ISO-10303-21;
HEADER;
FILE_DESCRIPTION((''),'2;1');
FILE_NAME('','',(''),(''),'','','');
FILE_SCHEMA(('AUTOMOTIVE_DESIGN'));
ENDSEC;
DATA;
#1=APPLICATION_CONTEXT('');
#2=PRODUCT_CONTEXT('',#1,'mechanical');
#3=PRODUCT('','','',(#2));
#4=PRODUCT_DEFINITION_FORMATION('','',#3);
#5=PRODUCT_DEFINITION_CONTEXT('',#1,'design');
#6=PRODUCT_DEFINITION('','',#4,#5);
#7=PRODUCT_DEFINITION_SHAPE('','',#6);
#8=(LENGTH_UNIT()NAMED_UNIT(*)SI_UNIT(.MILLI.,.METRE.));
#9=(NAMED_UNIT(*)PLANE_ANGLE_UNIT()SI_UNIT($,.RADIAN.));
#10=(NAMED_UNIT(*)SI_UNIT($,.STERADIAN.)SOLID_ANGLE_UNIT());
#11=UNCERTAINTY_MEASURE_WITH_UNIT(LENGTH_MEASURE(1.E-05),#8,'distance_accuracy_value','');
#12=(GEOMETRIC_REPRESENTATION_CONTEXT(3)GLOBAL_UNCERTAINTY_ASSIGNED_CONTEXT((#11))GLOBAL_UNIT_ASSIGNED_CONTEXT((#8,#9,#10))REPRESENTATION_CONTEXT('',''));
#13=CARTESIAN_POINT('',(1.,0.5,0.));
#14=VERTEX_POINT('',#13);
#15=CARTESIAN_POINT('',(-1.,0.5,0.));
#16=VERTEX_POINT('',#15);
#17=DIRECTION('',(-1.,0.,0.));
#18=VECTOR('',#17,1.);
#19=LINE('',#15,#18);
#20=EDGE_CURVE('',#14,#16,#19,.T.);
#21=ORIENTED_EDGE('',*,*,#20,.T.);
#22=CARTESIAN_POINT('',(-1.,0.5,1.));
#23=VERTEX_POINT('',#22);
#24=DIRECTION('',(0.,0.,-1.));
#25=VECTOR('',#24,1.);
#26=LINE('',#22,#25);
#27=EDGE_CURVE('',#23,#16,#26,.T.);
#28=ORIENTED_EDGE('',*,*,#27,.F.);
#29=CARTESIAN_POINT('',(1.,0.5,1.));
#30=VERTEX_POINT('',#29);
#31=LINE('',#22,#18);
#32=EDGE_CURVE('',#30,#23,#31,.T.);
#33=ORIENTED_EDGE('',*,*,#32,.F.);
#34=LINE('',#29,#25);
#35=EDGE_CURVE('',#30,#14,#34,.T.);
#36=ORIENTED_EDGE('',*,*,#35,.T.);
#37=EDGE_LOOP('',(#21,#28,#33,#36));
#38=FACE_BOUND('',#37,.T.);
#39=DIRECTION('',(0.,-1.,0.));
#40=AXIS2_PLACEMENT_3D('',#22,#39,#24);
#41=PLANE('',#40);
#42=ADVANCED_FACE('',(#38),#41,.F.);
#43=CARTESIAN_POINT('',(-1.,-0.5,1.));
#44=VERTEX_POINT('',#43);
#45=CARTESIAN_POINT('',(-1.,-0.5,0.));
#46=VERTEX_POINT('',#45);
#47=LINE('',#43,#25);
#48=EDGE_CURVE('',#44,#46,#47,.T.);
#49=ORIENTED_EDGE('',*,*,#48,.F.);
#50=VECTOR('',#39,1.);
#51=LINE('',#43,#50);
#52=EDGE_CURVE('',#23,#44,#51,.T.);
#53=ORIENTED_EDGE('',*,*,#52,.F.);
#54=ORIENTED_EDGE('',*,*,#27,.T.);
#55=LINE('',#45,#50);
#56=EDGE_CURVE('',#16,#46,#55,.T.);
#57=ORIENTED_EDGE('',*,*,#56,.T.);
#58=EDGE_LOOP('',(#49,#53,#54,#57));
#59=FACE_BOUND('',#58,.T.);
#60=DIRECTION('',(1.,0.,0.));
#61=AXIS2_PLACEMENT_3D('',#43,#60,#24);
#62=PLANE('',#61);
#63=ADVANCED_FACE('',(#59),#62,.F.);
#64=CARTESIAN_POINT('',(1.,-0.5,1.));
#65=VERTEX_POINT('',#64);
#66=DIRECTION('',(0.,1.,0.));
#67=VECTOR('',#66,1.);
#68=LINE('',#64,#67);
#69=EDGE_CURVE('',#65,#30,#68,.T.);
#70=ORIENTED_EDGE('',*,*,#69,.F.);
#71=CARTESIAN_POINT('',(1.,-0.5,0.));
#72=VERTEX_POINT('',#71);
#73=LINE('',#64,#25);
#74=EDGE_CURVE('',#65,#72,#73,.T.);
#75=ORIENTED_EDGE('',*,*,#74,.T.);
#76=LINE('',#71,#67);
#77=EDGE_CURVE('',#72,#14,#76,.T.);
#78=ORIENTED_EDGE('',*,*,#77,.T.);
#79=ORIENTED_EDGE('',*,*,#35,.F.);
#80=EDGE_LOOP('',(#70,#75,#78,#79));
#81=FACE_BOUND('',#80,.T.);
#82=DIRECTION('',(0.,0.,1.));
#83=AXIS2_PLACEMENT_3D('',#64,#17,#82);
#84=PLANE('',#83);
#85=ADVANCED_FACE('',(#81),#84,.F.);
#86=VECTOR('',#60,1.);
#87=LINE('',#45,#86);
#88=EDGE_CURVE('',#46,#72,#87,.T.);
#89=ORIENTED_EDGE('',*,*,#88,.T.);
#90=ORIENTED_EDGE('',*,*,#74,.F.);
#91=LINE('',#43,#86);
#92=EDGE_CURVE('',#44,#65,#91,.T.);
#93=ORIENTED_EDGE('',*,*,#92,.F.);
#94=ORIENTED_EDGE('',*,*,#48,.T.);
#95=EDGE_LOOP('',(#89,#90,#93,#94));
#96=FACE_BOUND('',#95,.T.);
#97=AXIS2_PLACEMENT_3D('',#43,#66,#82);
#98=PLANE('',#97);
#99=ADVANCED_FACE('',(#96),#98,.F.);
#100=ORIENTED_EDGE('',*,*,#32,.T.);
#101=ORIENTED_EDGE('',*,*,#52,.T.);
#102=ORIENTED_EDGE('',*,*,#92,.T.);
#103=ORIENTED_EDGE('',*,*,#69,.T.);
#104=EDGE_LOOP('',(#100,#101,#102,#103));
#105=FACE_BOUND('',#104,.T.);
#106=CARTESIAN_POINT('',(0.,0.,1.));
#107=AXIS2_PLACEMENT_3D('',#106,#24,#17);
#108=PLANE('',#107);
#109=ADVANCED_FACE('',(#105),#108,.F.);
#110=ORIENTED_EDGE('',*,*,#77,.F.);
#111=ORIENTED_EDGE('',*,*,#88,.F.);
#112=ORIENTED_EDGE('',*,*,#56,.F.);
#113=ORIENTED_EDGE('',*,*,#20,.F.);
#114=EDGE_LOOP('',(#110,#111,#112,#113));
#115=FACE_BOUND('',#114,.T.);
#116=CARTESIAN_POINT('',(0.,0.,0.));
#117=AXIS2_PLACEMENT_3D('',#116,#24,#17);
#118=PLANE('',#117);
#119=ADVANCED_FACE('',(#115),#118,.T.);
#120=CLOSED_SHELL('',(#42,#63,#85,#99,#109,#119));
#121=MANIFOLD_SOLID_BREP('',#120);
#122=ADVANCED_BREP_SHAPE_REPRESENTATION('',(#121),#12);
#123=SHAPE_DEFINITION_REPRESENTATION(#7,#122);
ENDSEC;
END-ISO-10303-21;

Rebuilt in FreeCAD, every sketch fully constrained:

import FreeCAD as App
import Part
import Sketcher
Q = App.Units.Quantity

doc = App.newDocument("Part")
params = doc.addObject("Spreadsheet::Sheet", "Params")
for row, (alias, value) in enumerate([
    ("sketch1_width", "2 mm"),
    ("sketch1_height", "1 mm"),
    ("pad1_length", "1 mm"),
], start=1):
    params.set(f"A{row}", alias)
    params.set(f"B{row}", "=" + value)
    params.setAlias(f"B{row}", alias)

body = doc.addObject("PartDesign::Body", "Body")

sketch1 = body.newObject("Sketcher::SketchObject", "Sketch")
sketch1.AttachmentSupport = (doc.getObject("XY_Plane"), [""])
sketch1.MapMode = "FlatFace"
sketch1.addGeometry([
    Part.LineSegment(App.Vector(-1, 0.5, 0), App.Vector(-1, -0.5, 0)),
    Part.LineSegment(App.Vector(-1, -0.5, 0), App.Vector(1, -0.5, 0)),
    Part.LineSegment(App.Vector(1, -0.5, 0), App.Vector(1, 0.5, 0)),
    Part.LineSegment(App.Vector(1, 0.5, 0), App.Vector(-1, 0.5, 0)),
], False)
sketch1.addConstraint([
    Sketcher.Constraint("Coincident", 0, 2, 1, 1),
    Sketcher.Constraint("Coincident", 1, 2, 2, 1),
    Sketcher.Constraint("Coincident", 2, 2, 3, 1),
    Sketcher.Constraint("Coincident", 3, 2, 0, 1),
    Sketcher.Constraint("Vertical", 0),
    Sketcher.Constraint("Horizontal", 1),
    Sketcher.Constraint("Vertical", 2),
    Sketcher.Constraint("Horizontal", 3),
    Sketcher.Constraint("Symmetric", 0, 2, 2, 2, -1, 1),
    Sketcher.Constraint("DistanceX", 1, 1, 1, 2, Q("2 mm")),
    Sketcher.Constraint("DistanceY", 0, 2, 0, 1, Q("1 mm")),
])
sketch1.setExpression("Constraints[9]", "Params.sketch1_width")
sketch1.setExpression("Constraints[10]", "Params.sketch1_height")
pad1 = body.newObject("PartDesign::Pad", "Pad")
pad1.Profile = sketch1
pad1.setExpression("Length", "Params.pad1_length")

doc.recompute()
